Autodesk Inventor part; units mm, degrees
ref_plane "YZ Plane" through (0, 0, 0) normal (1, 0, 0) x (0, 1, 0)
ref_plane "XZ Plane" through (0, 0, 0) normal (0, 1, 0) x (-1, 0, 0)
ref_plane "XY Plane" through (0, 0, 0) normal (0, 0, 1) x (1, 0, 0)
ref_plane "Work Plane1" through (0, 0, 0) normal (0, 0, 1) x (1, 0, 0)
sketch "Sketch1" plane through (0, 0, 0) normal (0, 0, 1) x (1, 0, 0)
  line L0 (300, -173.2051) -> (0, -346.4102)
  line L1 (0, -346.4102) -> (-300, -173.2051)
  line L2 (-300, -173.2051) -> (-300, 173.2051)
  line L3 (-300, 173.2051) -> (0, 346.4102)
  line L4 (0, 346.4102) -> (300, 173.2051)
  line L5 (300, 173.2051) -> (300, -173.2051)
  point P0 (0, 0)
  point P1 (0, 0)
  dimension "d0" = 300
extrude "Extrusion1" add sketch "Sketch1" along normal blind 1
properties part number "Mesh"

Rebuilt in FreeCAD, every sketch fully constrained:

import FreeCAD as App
import Part
import Sketcher
Q = App.Units.Quantity


def add_polygon(sketch, points):
    """Adds a closed chain of lines whose ends are joined by coincident constraints."""
    first, n = sketch.GeometryCount, len(points)
    for a, b in zip(points, points[1:] + points[:1]):
        sketch.addGeometry(Part.LineSegment(App.Vector(*a, 0), App.Vector(*b, 0)), False)
    for i in range(n):
        sketch.addConstraint(Sketcher.Constraint("Coincident", first + i, 2, first + (i + 1) % n, 1))

doc = App.newDocument("Part")
params = doc.addObject("Spreadsheet::Sheet", "Params")
for row, (alias, value) in enumerate([
    ("pad1_length", "1 mm"),
], start=1):
    params.set(f"A{row}", alias)
    params.set(f"B{row}", "=" + value)
    params.setAlias(f"B{row}", alias)

body = doc.addObject("PartDesign::Body", "Body")

# Sketch on XY plane
sketch1 = body.newObject("Sketcher::SketchObject", "Sketch")
sketch1.AttachmentSupport = (doc.getObject("XY_Plane"), [""])
sketch1.MapMode = "FlatFace"
add_polygon(sketch1, [(0, -346), (300, -173), (300, 173), (0, 346), (-300, 173), (-300, -173)])  # lines 0-5
sketch1.addConstraint(Sketcher.Constraint("Vertical", 1))
sketch1.addConstraint(Sketcher.Constraint("Vertical", 4))
sketch1.addConstraint(Sketcher.Constraint("Symmetric", 0, 2, 3, 2, -1, 1))
sketch1.addConstraint(Sketcher.Constraint("Symmetric", 2, 2, 5, 2, -1, 1))
sketch1.addConstraint(Sketcher.Constraint("PointOnObject", 2, 2, -2))
sketch1.addConstraint(Sketcher.Constraint("Parallel", 2, 5))
sketch1.addConstraint(Sketcher.Constraint("Horizontal", 1, 2, 3, 2))
sketch1.addConstraint(Sketcher.Constraint("DistanceX", -1, 1, 0, 2, Q("300 mm")))
sketch1.addConstraint(Sketcher.Constraint("Angle", 0, Q("30 deg")))
sketch1.addConstraint(Sketcher.Constraint("DistanceY", 1, 1, 1, 2, Q("346.4102 mm")))
pad1 = body.newObject("PartDesign::Pad", "Pad")
pad1.Profile = sketch1
pad1.setExpression("Length", "Params.pad1_length")

doc.recompute()
